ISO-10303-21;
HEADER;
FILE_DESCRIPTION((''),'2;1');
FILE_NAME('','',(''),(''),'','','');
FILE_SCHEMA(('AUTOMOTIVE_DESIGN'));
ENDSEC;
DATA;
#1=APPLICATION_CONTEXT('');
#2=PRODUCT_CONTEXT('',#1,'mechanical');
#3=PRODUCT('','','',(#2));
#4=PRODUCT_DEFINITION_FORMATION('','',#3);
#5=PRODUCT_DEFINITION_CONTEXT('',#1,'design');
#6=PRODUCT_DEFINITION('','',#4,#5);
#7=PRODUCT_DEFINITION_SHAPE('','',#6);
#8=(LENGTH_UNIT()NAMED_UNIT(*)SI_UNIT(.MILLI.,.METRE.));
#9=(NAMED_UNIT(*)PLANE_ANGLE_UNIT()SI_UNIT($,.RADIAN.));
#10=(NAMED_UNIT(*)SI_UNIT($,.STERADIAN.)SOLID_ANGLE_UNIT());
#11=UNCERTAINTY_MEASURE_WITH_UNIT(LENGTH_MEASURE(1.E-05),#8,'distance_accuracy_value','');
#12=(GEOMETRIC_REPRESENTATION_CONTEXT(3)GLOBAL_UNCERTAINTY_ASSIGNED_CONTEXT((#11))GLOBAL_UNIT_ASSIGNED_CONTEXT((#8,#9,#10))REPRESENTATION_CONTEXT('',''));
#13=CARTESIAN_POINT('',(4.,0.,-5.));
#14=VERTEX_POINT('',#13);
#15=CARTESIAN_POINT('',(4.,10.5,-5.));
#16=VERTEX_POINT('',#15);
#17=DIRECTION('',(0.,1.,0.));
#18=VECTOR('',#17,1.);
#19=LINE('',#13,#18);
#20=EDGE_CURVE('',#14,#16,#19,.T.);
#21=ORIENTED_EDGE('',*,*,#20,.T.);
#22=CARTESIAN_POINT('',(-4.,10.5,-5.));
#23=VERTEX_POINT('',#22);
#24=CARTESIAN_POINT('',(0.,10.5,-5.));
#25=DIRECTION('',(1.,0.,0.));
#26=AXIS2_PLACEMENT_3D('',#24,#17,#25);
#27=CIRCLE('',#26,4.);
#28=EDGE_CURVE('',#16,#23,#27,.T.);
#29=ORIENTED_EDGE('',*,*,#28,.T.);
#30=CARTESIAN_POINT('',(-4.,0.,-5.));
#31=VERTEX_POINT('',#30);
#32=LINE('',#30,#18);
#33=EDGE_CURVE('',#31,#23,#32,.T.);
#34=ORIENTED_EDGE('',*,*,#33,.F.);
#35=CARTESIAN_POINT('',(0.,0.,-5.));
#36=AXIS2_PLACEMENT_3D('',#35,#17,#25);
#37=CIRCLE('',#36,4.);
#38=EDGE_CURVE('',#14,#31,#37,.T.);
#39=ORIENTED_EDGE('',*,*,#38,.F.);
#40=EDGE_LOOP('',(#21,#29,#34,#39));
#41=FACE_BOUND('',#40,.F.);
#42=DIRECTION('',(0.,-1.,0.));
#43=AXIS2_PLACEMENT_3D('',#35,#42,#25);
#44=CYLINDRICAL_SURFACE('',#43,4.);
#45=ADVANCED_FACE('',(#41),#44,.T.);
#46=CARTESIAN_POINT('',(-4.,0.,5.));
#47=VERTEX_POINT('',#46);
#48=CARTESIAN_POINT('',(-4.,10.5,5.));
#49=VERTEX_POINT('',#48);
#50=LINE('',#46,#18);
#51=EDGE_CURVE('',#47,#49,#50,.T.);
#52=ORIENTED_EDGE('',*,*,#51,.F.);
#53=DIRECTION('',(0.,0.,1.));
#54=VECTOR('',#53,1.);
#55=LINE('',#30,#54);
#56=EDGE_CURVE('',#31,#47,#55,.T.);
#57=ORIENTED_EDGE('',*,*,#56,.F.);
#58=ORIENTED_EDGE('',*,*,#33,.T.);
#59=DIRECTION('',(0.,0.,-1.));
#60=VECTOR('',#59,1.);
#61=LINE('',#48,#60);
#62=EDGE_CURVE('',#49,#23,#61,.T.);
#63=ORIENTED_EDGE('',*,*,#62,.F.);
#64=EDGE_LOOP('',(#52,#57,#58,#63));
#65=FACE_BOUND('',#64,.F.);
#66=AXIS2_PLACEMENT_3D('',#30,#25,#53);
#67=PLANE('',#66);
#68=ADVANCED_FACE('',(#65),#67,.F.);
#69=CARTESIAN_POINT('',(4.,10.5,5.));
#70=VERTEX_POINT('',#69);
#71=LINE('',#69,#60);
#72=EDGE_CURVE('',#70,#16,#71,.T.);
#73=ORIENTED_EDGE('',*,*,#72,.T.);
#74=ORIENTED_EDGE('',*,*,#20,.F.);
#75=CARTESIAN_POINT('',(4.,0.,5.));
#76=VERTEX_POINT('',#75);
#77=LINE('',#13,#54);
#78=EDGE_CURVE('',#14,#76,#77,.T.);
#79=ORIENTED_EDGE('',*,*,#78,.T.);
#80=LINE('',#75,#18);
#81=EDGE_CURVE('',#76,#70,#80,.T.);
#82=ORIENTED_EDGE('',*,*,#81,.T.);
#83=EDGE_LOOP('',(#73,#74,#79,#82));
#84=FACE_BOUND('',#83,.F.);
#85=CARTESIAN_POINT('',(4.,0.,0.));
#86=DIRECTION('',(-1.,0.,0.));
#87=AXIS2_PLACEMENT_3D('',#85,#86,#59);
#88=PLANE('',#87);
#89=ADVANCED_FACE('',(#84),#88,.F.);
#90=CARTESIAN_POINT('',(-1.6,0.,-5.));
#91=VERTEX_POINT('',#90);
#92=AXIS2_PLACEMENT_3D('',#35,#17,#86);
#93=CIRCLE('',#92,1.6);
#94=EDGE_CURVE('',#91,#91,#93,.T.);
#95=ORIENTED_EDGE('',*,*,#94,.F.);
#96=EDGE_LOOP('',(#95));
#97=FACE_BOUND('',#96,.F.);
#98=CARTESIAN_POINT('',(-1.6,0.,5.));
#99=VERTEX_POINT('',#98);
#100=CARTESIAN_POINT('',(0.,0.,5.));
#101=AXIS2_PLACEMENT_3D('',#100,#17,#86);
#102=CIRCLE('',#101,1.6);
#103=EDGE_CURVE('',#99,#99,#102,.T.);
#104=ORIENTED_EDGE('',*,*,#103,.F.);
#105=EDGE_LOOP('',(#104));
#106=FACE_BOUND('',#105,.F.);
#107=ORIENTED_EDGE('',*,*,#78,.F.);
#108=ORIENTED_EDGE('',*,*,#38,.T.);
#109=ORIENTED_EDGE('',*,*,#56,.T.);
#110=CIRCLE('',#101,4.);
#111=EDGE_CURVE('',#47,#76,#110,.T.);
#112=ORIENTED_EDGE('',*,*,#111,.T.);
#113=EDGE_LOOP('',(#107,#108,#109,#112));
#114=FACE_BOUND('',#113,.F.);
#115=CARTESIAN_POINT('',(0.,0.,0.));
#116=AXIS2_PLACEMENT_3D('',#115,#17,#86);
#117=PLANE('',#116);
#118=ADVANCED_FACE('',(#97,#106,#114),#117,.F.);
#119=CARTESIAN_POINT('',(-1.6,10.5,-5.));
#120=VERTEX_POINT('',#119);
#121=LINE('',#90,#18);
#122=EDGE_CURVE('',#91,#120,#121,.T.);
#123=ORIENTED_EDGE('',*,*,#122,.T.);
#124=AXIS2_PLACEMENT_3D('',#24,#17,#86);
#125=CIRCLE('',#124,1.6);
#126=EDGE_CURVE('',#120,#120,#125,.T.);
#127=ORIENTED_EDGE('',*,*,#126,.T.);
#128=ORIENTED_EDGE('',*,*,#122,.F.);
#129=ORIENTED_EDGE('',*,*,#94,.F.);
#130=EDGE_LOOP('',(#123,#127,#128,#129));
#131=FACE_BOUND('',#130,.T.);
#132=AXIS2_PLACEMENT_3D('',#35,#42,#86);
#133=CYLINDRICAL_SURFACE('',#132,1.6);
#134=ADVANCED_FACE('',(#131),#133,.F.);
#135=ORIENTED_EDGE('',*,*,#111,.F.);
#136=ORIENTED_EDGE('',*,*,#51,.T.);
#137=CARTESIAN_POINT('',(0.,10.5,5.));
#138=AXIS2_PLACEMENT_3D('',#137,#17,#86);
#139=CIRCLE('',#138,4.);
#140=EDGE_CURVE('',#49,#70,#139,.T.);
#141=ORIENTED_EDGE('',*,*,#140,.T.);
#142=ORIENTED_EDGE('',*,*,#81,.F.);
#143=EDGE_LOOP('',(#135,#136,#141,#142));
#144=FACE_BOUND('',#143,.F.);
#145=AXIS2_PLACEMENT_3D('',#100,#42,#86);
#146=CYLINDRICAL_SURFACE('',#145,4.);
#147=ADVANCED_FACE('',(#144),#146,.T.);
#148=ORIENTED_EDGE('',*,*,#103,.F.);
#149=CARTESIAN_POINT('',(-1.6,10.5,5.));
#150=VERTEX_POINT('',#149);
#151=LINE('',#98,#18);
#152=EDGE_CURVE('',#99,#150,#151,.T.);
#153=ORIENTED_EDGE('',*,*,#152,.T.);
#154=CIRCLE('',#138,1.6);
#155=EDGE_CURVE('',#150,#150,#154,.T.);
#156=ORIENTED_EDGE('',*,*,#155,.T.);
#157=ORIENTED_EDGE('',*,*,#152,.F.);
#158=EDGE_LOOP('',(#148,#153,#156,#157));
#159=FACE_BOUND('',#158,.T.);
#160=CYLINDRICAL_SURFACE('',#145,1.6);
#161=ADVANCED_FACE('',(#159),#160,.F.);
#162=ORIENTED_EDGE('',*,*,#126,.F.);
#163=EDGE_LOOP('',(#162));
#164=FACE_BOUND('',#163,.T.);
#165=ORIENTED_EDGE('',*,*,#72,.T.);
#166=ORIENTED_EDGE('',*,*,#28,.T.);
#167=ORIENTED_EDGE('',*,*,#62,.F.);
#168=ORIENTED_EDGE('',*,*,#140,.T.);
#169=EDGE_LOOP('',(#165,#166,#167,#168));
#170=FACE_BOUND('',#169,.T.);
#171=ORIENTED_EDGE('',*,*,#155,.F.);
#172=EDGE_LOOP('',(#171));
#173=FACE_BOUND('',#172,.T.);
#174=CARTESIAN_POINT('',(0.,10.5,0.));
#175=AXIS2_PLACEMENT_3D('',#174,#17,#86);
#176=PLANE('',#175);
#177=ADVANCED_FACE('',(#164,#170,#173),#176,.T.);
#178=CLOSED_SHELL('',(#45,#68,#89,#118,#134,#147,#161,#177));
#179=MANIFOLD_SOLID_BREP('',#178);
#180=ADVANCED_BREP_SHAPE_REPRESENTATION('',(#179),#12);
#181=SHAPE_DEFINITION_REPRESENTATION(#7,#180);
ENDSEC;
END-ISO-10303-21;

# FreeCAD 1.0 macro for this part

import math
import FreeCAD as App
import Part
import Sketcher
Q = App.Units.Quantity

doc = App.newDocument("Part")
params = doc.addObject("Spreadsheet::Sheet", "Params")
for row, (alias, value) in enumerate([
    ("sketch1_radius", "4 mm"),
    ("sketch1_diameter", "3.2 mm"),
    ("sketch1_height", "10 mm"),
    ("pad1_length", "10.5 mm"),
], start=1):
    params.set(f"A{row}", alias)
    params.set(f"B{row}", "=" + value)
    params.setAlias(f"B{row}", alias)

body = doc.addObject("PartDesign::Body", "Body")

# Sketch on XZ plane
sketch1 = doc.addObject("Sketcher::SketchObject", "Sketch")
body.addObject(sketch1)
sketch1.AttachmentSupport = (doc.XZ_Plane, [""])
sketch1.MapMode = "FlatFace"
sketch1.addGeometry([
    Part.LineSegment(App.Vector(-4, -5, 0), App.Vector(-4, 5, 0)),  # 0
    Part.ArcOfCircle(Part.Circle(App.Vector(0, 5, 0), App.Vector(0, 0, 1), 4), math.radians(0), math.radians(180)),  # 1
    Part.LineSegment(App.Vector(4, 5, 0), App.Vector(4, -5, 0)),  # 2
    Part.ArcOfCircle(Part.Circle(App.Vector(0, -5, 0), App.Vector(0, 0, 1), 4), math.radians(180), math.radians(360)),  # 3
    Part.Circle(App.Vector(0, -5, 0), App.Vector(0, 0, 1), 1.6),  # 4
    Part.Circle(App.Vector(0, 5, 0), App.Vector(0, 0, 1), 1.6),  # 5
], False)
sketch1.addConstraint([
    Sketcher.Constraint("Tangent", 0, 2, 1, 2),
    Sketcher.Constraint("Tangent", 1, 1, 2, 1),
    Sketcher.Constraint("Tangent", 2, 2, 3, 2),
    Sketcher.Constraint("Tangent", 3, 1, 0, 1),
    Sketcher.Constraint("Vertical", 0),
    Sketcher.Constraint("Vertical", 2),
    Sketcher.Constraint("Coincident", 4, 3, 3, 3),
    Sketcher.Constraint("Coincident", 5, 3, 1, 3),
    Sketcher.Constraint("Equal", 4, 5),
    Sketcher.Constraint("Symmetric", 1, 3, 3, 3, -1, 1),
    Sketcher.Constraint("Radius", 1, Q("4 mm")),
    Sketcher.Constraint("Diameter", 4, Q("3.2 mm")),
    Sketcher.Constraint("DistanceY", 0, 1, 0, 2, Q("10 mm")),
])
sketch1.setExpression("Constraints[10]", "Params.sketch1_radius")
sketch1.setExpression("Constraints[11]", "Params.sketch1_diameter")
sketch1.setExpression("Constraints[12]", "Params.sketch1_height")
pad1 = doc.addObject("PartDesign::Pad", "Pad")
body.addObject(pad1)
pad1.Profile = sketch1
pad1.setExpression("Length", "Params.pad1_length")
pad1.Reversed = True

doc.recompute()
